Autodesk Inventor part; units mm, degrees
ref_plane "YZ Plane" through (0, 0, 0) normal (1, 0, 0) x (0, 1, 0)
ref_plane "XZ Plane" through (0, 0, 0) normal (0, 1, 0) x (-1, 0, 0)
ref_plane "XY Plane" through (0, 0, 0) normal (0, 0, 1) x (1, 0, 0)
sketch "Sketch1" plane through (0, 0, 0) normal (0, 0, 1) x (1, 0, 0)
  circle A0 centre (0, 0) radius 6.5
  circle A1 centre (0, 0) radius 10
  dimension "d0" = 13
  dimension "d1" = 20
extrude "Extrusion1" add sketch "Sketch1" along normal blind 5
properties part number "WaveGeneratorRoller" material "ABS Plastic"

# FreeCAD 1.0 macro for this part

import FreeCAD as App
import Part
import Sketcher
from FreeCAD import Vector

doc = App.newDocument("Part")
body = doc.addObject("PartDesign::Body", "Body")

sketch1 = body.newObject("Sketcher::SketchObject", "Sketch")
sketch1.AttachmentSupport = (doc.getObject("XY_Plane"), [""])
sketch1.MapMode = "FlatFace"
sketch1.addGeometry([
    Part.Circle(Vector(0, 0, 0), Vector(0, 0, 1), 10),
    Part.Circle(Vector(0, 0, 0), Vector(0, 0, 1), 6.5),
], False)
sketch1.addConstraint([
    Sketcher.Constraint("Coincident", 0, 3, -1, 1),
    Sketcher.Constraint("Coincident", 1, 3, -1, 1),
    Sketcher.Constraint("Diameter", 0, 20.0),
    Sketcher.Constraint("Diameter", 1, 13.0),
])
pad1 = body.newObject("PartDesign::Pad", "Pad")
pad1.Profile = sketch1
pad1.Length = 5

doc.recompute()
